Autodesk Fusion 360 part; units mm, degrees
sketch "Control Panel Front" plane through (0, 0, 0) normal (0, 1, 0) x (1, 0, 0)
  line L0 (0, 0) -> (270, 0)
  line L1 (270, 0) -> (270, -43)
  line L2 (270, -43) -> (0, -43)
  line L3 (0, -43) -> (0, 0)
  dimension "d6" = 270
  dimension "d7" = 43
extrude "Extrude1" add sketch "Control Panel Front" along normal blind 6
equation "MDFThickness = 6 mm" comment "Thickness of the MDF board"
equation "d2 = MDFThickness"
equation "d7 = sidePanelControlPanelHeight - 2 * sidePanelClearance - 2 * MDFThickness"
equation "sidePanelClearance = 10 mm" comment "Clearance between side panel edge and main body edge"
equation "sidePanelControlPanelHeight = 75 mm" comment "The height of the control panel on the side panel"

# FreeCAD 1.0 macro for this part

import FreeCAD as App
import Part
import Sketcher

V = App.Vector
Q = App.Units.Quantity

doc = App.newDocument("Part")
params = doc.addObject("Spreadsheet::Sheet", "Params")
for row, (alias, value) in enumerate([
    ("sketch1_width", "270 mm"),
    ("sketch1_height", "43 mm"),
    ("pad1_length", "6 mm"),
], start=1):
    params.set(f"A{row}", alias)
    params.set(f"B{row}", "=" + value)
    params.setAlias(f"B{row}", alias)

body = doc.addObject("PartDesign::Body", "Body")

sketch1 = doc.addObject("Sketcher::SketchObject", "Sketch")
body.addObject(sketch1)
sketch1.AttachmentSupport = (doc.XZ_Plane, [""])
sketch1.MapMode = "FlatFace"
sketch1.addGeometry(Part.LineSegment(V(270, 0, 0), V(0, 0, 0)), False)
sketch1.addGeometry(Part.LineSegment(V(0, 0, 0), V(0, 43, 0)), False)
sketch1.addGeometry(Part.LineSegment(V(0, 43, 0), V(270, 43, 0)), False)
sketch1.addGeometry(Part.LineSegment(V(270, 43, 0), V(270, 0, 0)), False)
sketch1.addConstraint(Sketcher.Constraint("Coincident", 0, 2, 1, 1))
sketch1.addConstraint(Sketcher.Constraint("Coincident", 1, 2, 2, 1))
sketch1.addConstraint(Sketcher.Constraint("Coincident", 2, 2, 3, 1))
sketch1.addConstraint(Sketcher.Constraint("Coincident", 3, 2, 0, 1))
sketch1.addConstraint(Sketcher.Constraint("Horizontal", 0))
sketch1.addConstraint(Sketcher.Constraint("Vertical", 1))
sketch1.addConstraint(Sketcher.Constraint("Horizontal", 2))
sketch1.addConstraint(Sketcher.Constraint("Vertical", 3))
sketch1.addConstraint(Sketcher.Constraint("Coincident", 0, 2, -1, 1))
sketch1.addConstraint(Sketcher.Constraint("DistanceX", 0, 2, 0, 1, Q("270 mm")))
sketch1.addConstraint(Sketcher.Constraint("DistanceY", 1, 1, 1, 2, Q("43 mm")))
sketch1.setExpression("Constraints[9]", "Params.sketch1_width")
sketch1.setExpression("Constraints[10]", "Params.sketch1_height")
pad1 = doc.addObject("PartDesign::Pad", "Pad")
body.addObject(pad1)
pad1.Profile = sketch1
pad1.setExpression("Length", "Params.pad1_length")
pad1.Reversed = True

doc.recompute()
